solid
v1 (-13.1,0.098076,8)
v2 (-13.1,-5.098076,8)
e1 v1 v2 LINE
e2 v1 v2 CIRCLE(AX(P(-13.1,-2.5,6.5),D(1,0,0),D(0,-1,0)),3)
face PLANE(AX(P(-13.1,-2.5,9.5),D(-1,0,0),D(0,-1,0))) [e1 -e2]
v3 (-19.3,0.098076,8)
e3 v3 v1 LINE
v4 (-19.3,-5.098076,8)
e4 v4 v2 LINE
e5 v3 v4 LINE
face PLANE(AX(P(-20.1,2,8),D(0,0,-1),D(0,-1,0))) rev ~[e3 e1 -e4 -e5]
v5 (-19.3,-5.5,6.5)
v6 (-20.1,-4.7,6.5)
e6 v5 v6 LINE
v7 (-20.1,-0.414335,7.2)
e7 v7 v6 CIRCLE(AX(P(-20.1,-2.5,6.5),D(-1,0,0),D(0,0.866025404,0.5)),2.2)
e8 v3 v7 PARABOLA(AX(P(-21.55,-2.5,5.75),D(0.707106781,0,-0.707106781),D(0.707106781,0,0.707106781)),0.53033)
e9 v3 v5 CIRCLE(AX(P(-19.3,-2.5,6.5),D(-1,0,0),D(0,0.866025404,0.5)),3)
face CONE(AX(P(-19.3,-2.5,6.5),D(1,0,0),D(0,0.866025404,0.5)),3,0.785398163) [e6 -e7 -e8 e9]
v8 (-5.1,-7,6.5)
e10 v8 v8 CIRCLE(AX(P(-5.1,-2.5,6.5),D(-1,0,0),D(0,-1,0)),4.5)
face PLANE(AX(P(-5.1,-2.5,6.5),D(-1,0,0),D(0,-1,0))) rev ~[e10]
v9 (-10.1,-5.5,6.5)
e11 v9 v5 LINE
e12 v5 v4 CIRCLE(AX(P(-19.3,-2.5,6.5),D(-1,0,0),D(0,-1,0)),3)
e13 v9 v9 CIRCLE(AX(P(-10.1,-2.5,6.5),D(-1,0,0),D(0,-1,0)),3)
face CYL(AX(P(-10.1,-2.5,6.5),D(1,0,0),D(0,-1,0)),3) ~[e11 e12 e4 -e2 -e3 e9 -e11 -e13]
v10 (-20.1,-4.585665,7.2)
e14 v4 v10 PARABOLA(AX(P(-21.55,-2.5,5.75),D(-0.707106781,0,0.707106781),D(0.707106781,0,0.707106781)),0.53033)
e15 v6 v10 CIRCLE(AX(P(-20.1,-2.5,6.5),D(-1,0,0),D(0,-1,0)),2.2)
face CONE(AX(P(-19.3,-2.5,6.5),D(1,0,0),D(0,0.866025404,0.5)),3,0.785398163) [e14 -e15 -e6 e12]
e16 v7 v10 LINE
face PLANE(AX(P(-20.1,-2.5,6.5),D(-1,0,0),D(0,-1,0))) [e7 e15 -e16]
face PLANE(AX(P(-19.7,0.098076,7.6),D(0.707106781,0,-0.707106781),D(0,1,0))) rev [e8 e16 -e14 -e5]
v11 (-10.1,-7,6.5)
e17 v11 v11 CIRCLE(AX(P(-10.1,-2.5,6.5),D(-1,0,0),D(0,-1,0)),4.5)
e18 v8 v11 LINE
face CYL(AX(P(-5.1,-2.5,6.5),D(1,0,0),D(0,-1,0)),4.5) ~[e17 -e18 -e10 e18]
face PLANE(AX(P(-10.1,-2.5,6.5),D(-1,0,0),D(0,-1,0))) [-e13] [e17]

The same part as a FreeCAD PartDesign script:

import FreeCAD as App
import Part
import Sketcher

V = App.Vector
Q = App.Units.Quantity


def edges_at(feature, points):
    """Names of the edges that pass closest to the given points."""
    edges = feature.Shape.Edges
    near = lambda p: min(range(len(edges)), key=lambda i: edges[i].distToShape(Part.Vertex(*p))[0])
    return sorted({f"Edge{near(p) + 1}" for p in points})


def add_polygon(sketch, points):
    """Adds a closed chain of lines whose ends are joined by coincident constraints."""
    first, n = sketch.GeometryCount, len(points)
    for a, b in zip(points, points[1:] + points[:1]):
        sketch.addGeometry(Part.LineSegment(App.Vector(*a, 0), App.Vector(*b, 0)), False)
    for i in range(n):
        sketch.addConstraint(Sketcher.Constraint("Coincident", first + i, 2, first + (i + 1) % n, 1))

doc = App.newDocument("Part")
body = doc.addObject("PartDesign::Body", "Body")

sketch1 = body.newObject("Sketcher::SketchObject", "Sketch")
sketch1.AttachmentSupport = (doc.getObject("YZ_Plane"), [""])
sketch1.MapMode = "FlatFace"
sketch1.AttachmentOffset = App.Placement(V(0, 0, -5.1), App.Rotation())
sketch1.addGeometry(Part.Circle(V(-2.5, 6.5, 0), V(0, 0, 1), 4.5), False)
sketch1.addConstraint(Sketcher.Constraint("Diameter", 0, Q("9 mm")))
sketch1.addConstraint(Sketcher.Constraint("DistanceX", 0, 3, -1, 1, Q("2.5 mm")))
sketch1.addConstraint(Sketcher.Constraint("DistanceY", -1, 1, 0, 3, Q("6.5 mm")))
pad1 = body.newObject("PartDesign::Pad", "Pad")
pad1.Profile = sketch1
pad1.Length = 5
pad1.Reversed = True

sketch2 = body.newObject("Sketcher::SketchObject", "Sketch001")
sketch2.AttachmentSupport = (doc.getObject("YZ_Plane"), [""])
sketch2.MapMode = "FlatFace"
sketch2.AttachmentOffset = App.Placement(V(0, 0, -10.1), App.Rotation())
sketch2.addGeometry(Part.Circle(V(-2.5, 6.5, 0), V(0, 0, 1), 3), False)
sketch2.addConstraint(Sketcher.Constraint("Diameter", 0, Q("6 mm")))
sketch2.addConstraint(Sketcher.Constraint("DistanceX", 0, 3, -1, 1, Q("2.5 mm")))
sketch2.addConstraint(Sketcher.Constraint("DistanceY", -1, 1, 0, 3, Q("6.5 mm")))
pad2 = body.newObject("PartDesign::Pad", "Pad001")
pad2.Profile = sketch2
pad2.Length = 10
pad2.Reversed = True

sketch3 = body.newObject("Sketcher::SketchObject", "Sketch002")
sketch3.AttachmentSupport = (doc.getObject("YZ_Plane"), [""])
sketch3.MapMode = "FlatFace"
sketch3.AttachmentOffset = App.Placement(V(0, 0, -20.1), App.Rotation())
add_polygon(sketch3, [(2, 11), (2, 8), (-7, 8), (-7, 11)])
sketch3.addConstraint(Sketcher.Constraint("Vertical", 0))
sketch3.addConstraint(Sketcher.Constraint("Horizontal", 1))
sketch3.addConstraint(Sketcher.Constraint("Vertical", 2))
sketch3.addConstraint(Sketcher.Constraint("Horizontal", 3))
sketch3.addConstraint(Sketcher.Constraint("DistanceX", 1, 2, 1, 1, Q("9 mm")))
sketch3.addConstraint(Sketcher.Constraint("DistanceY", 0, 2, 0, 1, Q("3 mm")))
sketch3.addConstraint(Sketcher.Constraint("DistanceX", -1, 1, 0, 2, Q("2 mm")))
sketch3.addConstraint(Sketcher.Constraint("DistanceY", -1, 1, 0, 2, Q("8 mm")))
pocket1 = body.newObject("PartDesign::Pocket", "Pocket")
pocket1.Profile = sketch3
pocket1.Length = 7
pocket1.Reversed = True
doc.recompute()

chamfer = body.newObject("PartDesign::Chamfer", "Chamfer")
chamfer.Base = (pocket1, edges_at(pocket1, [(-20.1, -5.398, 7.276), (-20.1, -2.5, 8), (-20.1, -1.724, 3.602)]))
chamfer.Size = 0.8

doc.recompute()
